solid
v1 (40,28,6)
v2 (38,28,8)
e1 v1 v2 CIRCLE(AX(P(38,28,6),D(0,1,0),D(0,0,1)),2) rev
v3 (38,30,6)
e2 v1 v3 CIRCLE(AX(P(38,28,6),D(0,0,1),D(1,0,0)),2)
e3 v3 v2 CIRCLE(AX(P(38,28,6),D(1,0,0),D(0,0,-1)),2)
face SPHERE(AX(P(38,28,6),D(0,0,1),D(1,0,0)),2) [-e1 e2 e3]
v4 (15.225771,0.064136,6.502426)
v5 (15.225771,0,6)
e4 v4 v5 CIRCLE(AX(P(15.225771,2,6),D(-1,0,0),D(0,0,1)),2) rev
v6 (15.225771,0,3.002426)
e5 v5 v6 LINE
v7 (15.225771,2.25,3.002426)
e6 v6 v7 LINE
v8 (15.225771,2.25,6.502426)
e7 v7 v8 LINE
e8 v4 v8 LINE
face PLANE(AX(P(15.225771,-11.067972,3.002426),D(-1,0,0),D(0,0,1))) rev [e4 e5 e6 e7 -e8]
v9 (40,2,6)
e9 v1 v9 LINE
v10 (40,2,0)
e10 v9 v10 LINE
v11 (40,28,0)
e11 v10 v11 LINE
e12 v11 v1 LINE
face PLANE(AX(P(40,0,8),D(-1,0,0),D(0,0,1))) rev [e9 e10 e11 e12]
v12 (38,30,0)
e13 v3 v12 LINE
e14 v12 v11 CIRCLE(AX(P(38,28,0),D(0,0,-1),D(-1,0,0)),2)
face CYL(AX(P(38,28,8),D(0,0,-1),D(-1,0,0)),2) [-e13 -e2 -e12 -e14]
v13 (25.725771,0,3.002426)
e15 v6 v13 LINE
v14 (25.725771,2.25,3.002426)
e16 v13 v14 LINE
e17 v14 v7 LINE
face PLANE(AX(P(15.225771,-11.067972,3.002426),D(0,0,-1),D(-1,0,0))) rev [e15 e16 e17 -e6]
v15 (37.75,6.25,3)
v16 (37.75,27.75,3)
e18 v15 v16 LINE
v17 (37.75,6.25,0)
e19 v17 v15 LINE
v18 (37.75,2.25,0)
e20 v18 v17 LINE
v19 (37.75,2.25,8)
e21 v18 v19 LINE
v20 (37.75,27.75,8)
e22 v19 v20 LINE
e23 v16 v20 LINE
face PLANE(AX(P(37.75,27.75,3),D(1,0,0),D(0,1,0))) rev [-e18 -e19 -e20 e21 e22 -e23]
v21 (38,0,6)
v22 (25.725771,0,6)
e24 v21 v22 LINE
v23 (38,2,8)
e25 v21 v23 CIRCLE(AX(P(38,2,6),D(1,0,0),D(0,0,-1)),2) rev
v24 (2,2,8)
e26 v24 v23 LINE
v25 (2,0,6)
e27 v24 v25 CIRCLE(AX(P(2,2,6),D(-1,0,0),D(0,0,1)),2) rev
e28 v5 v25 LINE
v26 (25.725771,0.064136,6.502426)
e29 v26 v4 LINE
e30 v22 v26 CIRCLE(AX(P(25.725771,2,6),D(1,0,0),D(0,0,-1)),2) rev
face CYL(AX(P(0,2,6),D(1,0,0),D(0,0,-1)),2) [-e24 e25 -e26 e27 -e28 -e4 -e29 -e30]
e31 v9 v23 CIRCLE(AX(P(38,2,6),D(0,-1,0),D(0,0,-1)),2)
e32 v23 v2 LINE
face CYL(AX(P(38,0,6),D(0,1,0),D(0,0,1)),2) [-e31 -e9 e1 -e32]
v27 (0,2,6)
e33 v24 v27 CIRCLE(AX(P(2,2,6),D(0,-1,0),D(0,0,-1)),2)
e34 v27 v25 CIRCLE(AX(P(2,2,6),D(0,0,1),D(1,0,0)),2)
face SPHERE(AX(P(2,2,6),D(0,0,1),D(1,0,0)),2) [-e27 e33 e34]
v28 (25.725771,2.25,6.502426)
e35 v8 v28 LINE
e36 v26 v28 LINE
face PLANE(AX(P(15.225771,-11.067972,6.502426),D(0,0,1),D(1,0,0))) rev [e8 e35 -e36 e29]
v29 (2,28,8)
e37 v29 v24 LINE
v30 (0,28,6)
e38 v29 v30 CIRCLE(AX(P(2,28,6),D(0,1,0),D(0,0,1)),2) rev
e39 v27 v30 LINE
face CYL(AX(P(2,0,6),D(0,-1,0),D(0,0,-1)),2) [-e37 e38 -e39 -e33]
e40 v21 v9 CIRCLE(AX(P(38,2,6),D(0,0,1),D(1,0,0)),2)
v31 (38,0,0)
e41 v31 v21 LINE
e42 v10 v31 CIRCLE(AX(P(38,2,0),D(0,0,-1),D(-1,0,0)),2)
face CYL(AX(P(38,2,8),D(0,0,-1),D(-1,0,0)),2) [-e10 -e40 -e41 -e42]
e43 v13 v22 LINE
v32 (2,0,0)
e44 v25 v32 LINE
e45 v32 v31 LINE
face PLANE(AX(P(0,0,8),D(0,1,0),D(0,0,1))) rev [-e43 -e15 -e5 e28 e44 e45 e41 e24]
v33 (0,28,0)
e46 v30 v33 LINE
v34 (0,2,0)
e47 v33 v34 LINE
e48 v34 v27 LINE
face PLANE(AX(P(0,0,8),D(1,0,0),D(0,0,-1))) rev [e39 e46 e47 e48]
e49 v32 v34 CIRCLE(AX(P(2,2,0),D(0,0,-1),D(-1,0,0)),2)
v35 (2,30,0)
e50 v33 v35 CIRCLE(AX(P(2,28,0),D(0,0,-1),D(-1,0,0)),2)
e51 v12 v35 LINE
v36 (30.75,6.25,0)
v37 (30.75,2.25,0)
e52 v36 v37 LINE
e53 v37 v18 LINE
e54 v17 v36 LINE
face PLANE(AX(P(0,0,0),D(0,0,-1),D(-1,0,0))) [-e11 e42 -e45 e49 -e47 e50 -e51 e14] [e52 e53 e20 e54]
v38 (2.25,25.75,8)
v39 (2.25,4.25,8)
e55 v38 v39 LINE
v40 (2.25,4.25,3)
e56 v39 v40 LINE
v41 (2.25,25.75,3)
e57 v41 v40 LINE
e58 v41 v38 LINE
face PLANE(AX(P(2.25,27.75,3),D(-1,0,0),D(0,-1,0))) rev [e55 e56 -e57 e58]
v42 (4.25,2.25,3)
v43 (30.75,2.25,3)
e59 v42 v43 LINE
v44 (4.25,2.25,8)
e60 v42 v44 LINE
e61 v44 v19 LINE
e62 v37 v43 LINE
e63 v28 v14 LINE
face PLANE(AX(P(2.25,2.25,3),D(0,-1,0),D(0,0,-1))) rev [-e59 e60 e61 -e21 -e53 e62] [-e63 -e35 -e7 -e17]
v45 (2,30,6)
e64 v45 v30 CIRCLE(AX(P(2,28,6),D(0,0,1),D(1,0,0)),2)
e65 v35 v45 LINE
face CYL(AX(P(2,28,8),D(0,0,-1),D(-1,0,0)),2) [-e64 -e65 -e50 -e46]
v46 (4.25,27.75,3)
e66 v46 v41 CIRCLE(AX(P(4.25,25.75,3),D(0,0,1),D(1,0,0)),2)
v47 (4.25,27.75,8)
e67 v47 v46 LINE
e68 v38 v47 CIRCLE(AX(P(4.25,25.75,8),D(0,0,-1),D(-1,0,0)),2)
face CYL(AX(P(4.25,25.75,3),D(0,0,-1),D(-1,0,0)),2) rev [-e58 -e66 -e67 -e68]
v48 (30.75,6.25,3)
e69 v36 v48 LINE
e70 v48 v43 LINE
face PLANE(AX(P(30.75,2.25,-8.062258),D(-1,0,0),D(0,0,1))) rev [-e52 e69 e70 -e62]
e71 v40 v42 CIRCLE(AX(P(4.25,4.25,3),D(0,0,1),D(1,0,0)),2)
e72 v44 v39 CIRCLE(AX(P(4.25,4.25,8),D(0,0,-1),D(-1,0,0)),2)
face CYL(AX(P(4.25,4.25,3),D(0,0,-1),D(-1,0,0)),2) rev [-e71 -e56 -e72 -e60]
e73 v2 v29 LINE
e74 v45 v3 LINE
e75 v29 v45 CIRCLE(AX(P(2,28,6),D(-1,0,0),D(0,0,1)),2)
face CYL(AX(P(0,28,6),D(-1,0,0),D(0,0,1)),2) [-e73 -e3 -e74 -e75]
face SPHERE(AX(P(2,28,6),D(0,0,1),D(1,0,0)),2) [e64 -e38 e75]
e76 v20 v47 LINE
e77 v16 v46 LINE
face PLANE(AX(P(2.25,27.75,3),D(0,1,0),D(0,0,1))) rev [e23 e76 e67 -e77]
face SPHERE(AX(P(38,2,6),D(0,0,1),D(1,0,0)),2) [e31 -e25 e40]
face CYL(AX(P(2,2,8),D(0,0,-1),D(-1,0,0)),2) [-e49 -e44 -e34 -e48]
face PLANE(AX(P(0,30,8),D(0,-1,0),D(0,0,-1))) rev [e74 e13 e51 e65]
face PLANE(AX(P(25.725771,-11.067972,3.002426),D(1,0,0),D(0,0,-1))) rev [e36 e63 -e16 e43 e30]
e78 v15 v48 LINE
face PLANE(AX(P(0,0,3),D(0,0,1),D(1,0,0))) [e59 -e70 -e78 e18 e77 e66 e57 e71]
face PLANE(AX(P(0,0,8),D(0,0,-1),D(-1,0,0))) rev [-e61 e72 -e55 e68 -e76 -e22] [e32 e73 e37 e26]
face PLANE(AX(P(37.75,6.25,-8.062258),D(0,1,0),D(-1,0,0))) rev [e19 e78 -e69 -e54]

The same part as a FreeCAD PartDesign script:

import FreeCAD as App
import Part
import Sketcher
from FreeCAD import Vector


def edges_at(feature, points):
    """Names of the edges that pass closest to the given points."""
    edges = feature.Shape.Edges
    near = lambda p: min(range(len(edges)), key=lambda i: edges[i].distToShape(Part.Vertex(*p))[0])
    return sorted({f"Edge{near(p) + 1}" for p in points})

doc = App.newDocument("Part")
params = doc.addObject("Spreadsheet::Sheet", "Params")
for row, (alias, value) in enumerate([
    ("sketch1_width", "40 mm"),
    ("sketch1_height", "30 mm"),
    ("pad1_length", "8 mm"),
    ("sketch2_width", "35.5 mm"),
    ("sketch2_height", "25.5 mm"),
    ("pocket1_length", "5 mm"),
    ("fillet_radius", "2 mm"),
    ("fillet2_radius", "2 mm"),
    ("sketch3_width", "7 mm"),
    ("sketch3_height", "4 mm"),
    ("pocket2_length", "3 mm"),
    ("sketch4_width", "10.5 mm"),
    ("sketch4_height", "3.5 mm"),
    ("pocket3_length", "2.25 mm"),
], start=1):
    params.set(f"A{row}", alias)
    params.set(f"B{row}", "=" + value)
    params.setAlias(f"B{row}", alias)

body = doc.addObject("PartDesign::Body", "Body")

sketch1 = body.newObject("Sketcher::SketchObject", "Sketch")
sketch1.AttachmentSupport = (doc.getObject("XY_Plane"), [""])
sketch1.MapMode = "FlatFace"
sketch1.addGeometry(Part.LineSegment(Vector(0, 30, 0), Vector(0, 0, 0)), False)
sketch1.addGeometry(Part.LineSegment(Vector(0, 0, 0), Vector(40, 0, 0)), False)
sketch1.addGeometry(Part.LineSegment(Vector(40, 0, 0), Vector(40, 30, 0)), False)
sketch1.addGeometry(Part.LineSegment(Vector(40, 30, 0), Vector(0, 30, 0)), False)
sketch1.addConstraint(Sketcher.Constraint("Coincident", 0, 2, 1, 1))
sketch1.addConstraint(Sketcher.Constraint("Coincident", 1, 2, 2, 1))
sketch1.addConstraint(Sketcher.Constraint("Coincident", 2, 2, 3, 1))
sketch1.addConstraint(Sketcher.Constraint("Coincident", 3, 2, 0, 1))
sketch1.addConstraint(Sketcher.Constraint("Vertical", 0))
sketch1.addConstraint(Sketcher.Constraint("Horizontal", 1))
sketch1.addConstraint(Sketcher.Constraint("Vertical", 2))
sketch1.addConstraint(Sketcher.Constraint("Horizontal", 3))
sketch1.addConstraint(Sketcher.Constraint("Coincident", 0, 2, -1, 1))
sketch1.addConstraint(Sketcher.Constraint("DistanceX", 1, 1, 1, 2, 40.0))
sketch1.addConstraint(Sketcher.Constraint("DistanceY", 0, 2, 0, 1, 30.0))
sketch1.setExpression("Constraints[9]", "Params.sketch1_width")
sketch1.setExpression("Constraints[10]", "Params.sketch1_height")
pad1 = body.newObject("PartDesign::Pad", "Pad")
pad1.Profile = sketch1
pad1.setExpression("Length", "Params.pad1_length")

sketch2 = body.newObject("Sketcher::SketchObject", "Sketch001")
sketch2.AttachmentSupport = (doc.getObject("XY_Plane"), [""])
sketch2.MapMode = "FlatFace"
sketch2.AttachmentOffset = App.Placement(Vector(0, 0, 8), App.Rotation())
sketch2.addGeometry(Part.LineSegment(Vector(2, 28, 0), Vector(2, 2, 0)), False)
sketch2.addGeometry(Part.LineSegment(Vector(2, 2, 0), Vector(38, 2, 0)), False)
sketch2.addGeometry(Part.LineSegment(Vector(38, 2, 0), Vector(38, 28, 0)), False)
sketch2.addGeometry(Part.LineSegment(Vector(38, 28, 0), Vector(2, 28, 0)), False)
sketch2.addConstraint(Sketcher.Constraint("Coincident", 0, 2, 1, 1))
sketch2.addConstraint(Sketcher.Constraint("Coincident", 1, 2, 2, 1))
sketch2.addConstraint(Sketcher.Constraint("Coincident", 2, 2, 3, 1))
sketch2.addConstraint(Sketcher.Constraint("Coincident", 3, 2, 0, 1))
sketch2.addConstraint(Sketcher.Constraint("Vertical", 0))
sketch2.addConstraint(Sketcher.Constraint("Horizontal", 1))
sketch2.addConstraint(Sketcher.Constraint("Vertical", 2))
sketch2.addConstraint(Sketcher.Constraint("Horizontal", 3))
sketch2.addConstraint(Sketcher.Constraint("DistanceX", 1, 1, 1, 2, 35.5))
sketch2.addConstraint(Sketcher.Constraint("DistanceY", 0, 2, 0, 1, 25.5))
sketch2.addConstraint(Sketcher.Constraint("DistanceX", -1, 1, 0, 2, 2.25))
sketch2.addConstraint(Sketcher.Constraint("DistanceY", -1, 1, 0, 2, 2.25))
sketch2.setExpression("Constraints[8]", "Params.sketch2_width")
sketch2.setExpression("Constraints[9]", "Params.sketch2_height")
pocket1 = body.newObject("PartDesign::Pocket", "Pocket")
pocket1.Profile = sketch2
pocket1.setExpression("Length", "Params.pocket1_length")
doc.recompute()

fillet = body.newObject("PartDesign::Fillet", "Fillet")
fillet.Base = (pocket1, edges_at(pocket1, [(2.25, 2.25, 5.5), (2.25, 27.75, 5.5)]))
fillet.setExpression("Radius", "Params.fillet_radius")
doc.recompute()

fillet2 = body.newObject("PartDesign::Fillet", "Fillet001")
fillet2.Base = (fillet, edges_at(fillet, [
    (40, 15, 8),
    (20, 30, 8),
    (0, 15, 8),
    (20, 0, 8),
    (0, 30, 4),
    (40, 30, 4),
    (40, 0, 4),
    (0, 0, 4),
]))
fillet2.setExpression("Radius", "Params.fillet2_radius")

sketch3 = body.newObject("Sketcher::SketchObject", "Sketch002")
sketch3.AttachmentSupport = (doc.getObject("XY_Plane"), [""])
sketch3.MapMode = "FlatFace"
sketch3.AttachmentOffset = App.Placement(Vector(0, 0, 3), App.Rotation())
sketch3.addGeometry(Part.LineSegment(Vector(30.8, 6.2, 0), Vector(30.8, 2.2, 0)), False)
sketch3.addGeometry(Part.LineSegment(Vector(30.8, 2.2, 0), Vector(37.8, 2.2, 0)), False)
sketch3.addGeometry(Part.LineSegment(Vector(37.8, 2.2, 0), Vector(37.8, 6.2, 0)), False)
sketch3.addGeometry(Part.LineSegment(Vector(37.8, 6.2, 0), Vector(30.8, 6.2, 0)), False)
sketch3.addConstraint(Sketcher.Constraint("Coincident", 0, 2, 1, 1))
sketch3.addConstraint(Sketcher.Constraint("Coincident", 1, 2, 2, 1))
sketch3.addConstraint(Sketcher.Constraint("Coincident", 2, 2, 3, 1))
sketch3.addConstraint(Sketcher.Constraint("Coincident", 3, 2, 0, 1))
sketch3.addConstraint(Sketcher.Constraint("Vertical", 0))
sketch3.addConstraint(Sketcher.Constraint("Horizontal", 1))
sketch3.addConstraint(Sketcher.Constraint("Vertical", 2))
sketch3.addConstraint(Sketcher.Constraint("Horizontal", 3))
sketch3.addConstraint(Sketcher.Constraint("DistanceX", 1, 1, 1, 2, 7.0))
sketch3.addConstraint(Sketcher.Constraint("DistanceY", 0, 2, 0, 1, 4.0))
sketch3.addConstraint(Sketcher.Constraint("DistanceX", -1, 1, 0, 2, 30.75))
sketch3.addConstraint(Sketcher.Constraint("DistanceY", -1, 1, 0, 2, 2.25))
sketch3.setExpression("Constraints[8]", "Params.sketch3_width")
sketch3.setExpression("Constraints[9]", "Params.sketch3_height")
pocket2 = body.newObject("PartDesign::Pocket", "Pocket001")
pocket2.Profile = sketch3
pocket2.setExpression("Length", "Params.pocket2_length")

sketch4 = body.newObject("Sketcher::SketchObject", "Sketch003")
sketch4.AttachmentSupport = (doc.getObject("XZ_Plane"), [""])
sketch4.MapMode = "FlatFace"
sketch4.AttachmentOffset = App.Placement(Vector(0, 0, -2.25), App.Rotation())
sketch4.addGeometry(Part.LineSegment(Vector(15.2, 3, 0), Vector(15.2, 6.5, 0)), False)
sketch4.addGeometry(Part.LineSegment(Vector(15.2, 6.5, 0), Vector(25.7, 6.5, 0)), False)
sketch4.addGeometry(Part.LineSegment(Vector(25.7, 6.5, 0), Vector(25.7, 3, 0)), False)
sketch4.addGeometry(Part.LineSegment(Vector(25.7, 3, 0), Vector(15.2, 3, 0)), False)
sketch4.addConstraint(Sketcher.Constraint("Coincident", 0, 2, 1, 1))
sketch4.addConstraint(Sketcher.Constraint("Coincident", 1, 2, 2, 1))
sketch4.addConstraint(Sketcher.Constraint("Coincident", 2, 2, 3, 1))
sketch4.addConstraint(Sketcher.Constraint("Coincident", 3, 2, 0, 1))
sketch4.addConstraint(Sketcher.Constraint("Vertical", 0))
sketch4.addConstraint(Sketcher.Constraint("Horizontal", 1))
sketch4.addConstraint(Sketcher.Constraint("Vertical", 2))
sketch4.addConstraint(Sketcher.Constraint("Horizontal", 3))
sketch4.addConstraint(Sketcher.Constraint("DistanceX", 1, 1, 1, 2, 10.5))
sketch4.addConstraint(Sketcher.Constraint("DistanceY", 0, 1, 0, 2, 3.5))
sketch4.addConstraint(Sketcher.Constraint("DistanceX", -1, 1, 0, 2, 15.225771))
sketch4.addConstraint(Sketcher.Constraint("DistanceY", -1, 1, 0, 2, 6.502426))
sketch4.setExpression("Constraints[8]", "Params.sketch4_width")
sketch4.setExpression("Constraints[9]", "Params.sketch4_height")
pocket3 = body.newObject("PartDesign::Pocket", "Pocket002")
pocket3.Profile = sketch4
pocket3.setExpression("Length", "Params.pocket3_length")
pocket3.Reversed = True

doc.recompute()
